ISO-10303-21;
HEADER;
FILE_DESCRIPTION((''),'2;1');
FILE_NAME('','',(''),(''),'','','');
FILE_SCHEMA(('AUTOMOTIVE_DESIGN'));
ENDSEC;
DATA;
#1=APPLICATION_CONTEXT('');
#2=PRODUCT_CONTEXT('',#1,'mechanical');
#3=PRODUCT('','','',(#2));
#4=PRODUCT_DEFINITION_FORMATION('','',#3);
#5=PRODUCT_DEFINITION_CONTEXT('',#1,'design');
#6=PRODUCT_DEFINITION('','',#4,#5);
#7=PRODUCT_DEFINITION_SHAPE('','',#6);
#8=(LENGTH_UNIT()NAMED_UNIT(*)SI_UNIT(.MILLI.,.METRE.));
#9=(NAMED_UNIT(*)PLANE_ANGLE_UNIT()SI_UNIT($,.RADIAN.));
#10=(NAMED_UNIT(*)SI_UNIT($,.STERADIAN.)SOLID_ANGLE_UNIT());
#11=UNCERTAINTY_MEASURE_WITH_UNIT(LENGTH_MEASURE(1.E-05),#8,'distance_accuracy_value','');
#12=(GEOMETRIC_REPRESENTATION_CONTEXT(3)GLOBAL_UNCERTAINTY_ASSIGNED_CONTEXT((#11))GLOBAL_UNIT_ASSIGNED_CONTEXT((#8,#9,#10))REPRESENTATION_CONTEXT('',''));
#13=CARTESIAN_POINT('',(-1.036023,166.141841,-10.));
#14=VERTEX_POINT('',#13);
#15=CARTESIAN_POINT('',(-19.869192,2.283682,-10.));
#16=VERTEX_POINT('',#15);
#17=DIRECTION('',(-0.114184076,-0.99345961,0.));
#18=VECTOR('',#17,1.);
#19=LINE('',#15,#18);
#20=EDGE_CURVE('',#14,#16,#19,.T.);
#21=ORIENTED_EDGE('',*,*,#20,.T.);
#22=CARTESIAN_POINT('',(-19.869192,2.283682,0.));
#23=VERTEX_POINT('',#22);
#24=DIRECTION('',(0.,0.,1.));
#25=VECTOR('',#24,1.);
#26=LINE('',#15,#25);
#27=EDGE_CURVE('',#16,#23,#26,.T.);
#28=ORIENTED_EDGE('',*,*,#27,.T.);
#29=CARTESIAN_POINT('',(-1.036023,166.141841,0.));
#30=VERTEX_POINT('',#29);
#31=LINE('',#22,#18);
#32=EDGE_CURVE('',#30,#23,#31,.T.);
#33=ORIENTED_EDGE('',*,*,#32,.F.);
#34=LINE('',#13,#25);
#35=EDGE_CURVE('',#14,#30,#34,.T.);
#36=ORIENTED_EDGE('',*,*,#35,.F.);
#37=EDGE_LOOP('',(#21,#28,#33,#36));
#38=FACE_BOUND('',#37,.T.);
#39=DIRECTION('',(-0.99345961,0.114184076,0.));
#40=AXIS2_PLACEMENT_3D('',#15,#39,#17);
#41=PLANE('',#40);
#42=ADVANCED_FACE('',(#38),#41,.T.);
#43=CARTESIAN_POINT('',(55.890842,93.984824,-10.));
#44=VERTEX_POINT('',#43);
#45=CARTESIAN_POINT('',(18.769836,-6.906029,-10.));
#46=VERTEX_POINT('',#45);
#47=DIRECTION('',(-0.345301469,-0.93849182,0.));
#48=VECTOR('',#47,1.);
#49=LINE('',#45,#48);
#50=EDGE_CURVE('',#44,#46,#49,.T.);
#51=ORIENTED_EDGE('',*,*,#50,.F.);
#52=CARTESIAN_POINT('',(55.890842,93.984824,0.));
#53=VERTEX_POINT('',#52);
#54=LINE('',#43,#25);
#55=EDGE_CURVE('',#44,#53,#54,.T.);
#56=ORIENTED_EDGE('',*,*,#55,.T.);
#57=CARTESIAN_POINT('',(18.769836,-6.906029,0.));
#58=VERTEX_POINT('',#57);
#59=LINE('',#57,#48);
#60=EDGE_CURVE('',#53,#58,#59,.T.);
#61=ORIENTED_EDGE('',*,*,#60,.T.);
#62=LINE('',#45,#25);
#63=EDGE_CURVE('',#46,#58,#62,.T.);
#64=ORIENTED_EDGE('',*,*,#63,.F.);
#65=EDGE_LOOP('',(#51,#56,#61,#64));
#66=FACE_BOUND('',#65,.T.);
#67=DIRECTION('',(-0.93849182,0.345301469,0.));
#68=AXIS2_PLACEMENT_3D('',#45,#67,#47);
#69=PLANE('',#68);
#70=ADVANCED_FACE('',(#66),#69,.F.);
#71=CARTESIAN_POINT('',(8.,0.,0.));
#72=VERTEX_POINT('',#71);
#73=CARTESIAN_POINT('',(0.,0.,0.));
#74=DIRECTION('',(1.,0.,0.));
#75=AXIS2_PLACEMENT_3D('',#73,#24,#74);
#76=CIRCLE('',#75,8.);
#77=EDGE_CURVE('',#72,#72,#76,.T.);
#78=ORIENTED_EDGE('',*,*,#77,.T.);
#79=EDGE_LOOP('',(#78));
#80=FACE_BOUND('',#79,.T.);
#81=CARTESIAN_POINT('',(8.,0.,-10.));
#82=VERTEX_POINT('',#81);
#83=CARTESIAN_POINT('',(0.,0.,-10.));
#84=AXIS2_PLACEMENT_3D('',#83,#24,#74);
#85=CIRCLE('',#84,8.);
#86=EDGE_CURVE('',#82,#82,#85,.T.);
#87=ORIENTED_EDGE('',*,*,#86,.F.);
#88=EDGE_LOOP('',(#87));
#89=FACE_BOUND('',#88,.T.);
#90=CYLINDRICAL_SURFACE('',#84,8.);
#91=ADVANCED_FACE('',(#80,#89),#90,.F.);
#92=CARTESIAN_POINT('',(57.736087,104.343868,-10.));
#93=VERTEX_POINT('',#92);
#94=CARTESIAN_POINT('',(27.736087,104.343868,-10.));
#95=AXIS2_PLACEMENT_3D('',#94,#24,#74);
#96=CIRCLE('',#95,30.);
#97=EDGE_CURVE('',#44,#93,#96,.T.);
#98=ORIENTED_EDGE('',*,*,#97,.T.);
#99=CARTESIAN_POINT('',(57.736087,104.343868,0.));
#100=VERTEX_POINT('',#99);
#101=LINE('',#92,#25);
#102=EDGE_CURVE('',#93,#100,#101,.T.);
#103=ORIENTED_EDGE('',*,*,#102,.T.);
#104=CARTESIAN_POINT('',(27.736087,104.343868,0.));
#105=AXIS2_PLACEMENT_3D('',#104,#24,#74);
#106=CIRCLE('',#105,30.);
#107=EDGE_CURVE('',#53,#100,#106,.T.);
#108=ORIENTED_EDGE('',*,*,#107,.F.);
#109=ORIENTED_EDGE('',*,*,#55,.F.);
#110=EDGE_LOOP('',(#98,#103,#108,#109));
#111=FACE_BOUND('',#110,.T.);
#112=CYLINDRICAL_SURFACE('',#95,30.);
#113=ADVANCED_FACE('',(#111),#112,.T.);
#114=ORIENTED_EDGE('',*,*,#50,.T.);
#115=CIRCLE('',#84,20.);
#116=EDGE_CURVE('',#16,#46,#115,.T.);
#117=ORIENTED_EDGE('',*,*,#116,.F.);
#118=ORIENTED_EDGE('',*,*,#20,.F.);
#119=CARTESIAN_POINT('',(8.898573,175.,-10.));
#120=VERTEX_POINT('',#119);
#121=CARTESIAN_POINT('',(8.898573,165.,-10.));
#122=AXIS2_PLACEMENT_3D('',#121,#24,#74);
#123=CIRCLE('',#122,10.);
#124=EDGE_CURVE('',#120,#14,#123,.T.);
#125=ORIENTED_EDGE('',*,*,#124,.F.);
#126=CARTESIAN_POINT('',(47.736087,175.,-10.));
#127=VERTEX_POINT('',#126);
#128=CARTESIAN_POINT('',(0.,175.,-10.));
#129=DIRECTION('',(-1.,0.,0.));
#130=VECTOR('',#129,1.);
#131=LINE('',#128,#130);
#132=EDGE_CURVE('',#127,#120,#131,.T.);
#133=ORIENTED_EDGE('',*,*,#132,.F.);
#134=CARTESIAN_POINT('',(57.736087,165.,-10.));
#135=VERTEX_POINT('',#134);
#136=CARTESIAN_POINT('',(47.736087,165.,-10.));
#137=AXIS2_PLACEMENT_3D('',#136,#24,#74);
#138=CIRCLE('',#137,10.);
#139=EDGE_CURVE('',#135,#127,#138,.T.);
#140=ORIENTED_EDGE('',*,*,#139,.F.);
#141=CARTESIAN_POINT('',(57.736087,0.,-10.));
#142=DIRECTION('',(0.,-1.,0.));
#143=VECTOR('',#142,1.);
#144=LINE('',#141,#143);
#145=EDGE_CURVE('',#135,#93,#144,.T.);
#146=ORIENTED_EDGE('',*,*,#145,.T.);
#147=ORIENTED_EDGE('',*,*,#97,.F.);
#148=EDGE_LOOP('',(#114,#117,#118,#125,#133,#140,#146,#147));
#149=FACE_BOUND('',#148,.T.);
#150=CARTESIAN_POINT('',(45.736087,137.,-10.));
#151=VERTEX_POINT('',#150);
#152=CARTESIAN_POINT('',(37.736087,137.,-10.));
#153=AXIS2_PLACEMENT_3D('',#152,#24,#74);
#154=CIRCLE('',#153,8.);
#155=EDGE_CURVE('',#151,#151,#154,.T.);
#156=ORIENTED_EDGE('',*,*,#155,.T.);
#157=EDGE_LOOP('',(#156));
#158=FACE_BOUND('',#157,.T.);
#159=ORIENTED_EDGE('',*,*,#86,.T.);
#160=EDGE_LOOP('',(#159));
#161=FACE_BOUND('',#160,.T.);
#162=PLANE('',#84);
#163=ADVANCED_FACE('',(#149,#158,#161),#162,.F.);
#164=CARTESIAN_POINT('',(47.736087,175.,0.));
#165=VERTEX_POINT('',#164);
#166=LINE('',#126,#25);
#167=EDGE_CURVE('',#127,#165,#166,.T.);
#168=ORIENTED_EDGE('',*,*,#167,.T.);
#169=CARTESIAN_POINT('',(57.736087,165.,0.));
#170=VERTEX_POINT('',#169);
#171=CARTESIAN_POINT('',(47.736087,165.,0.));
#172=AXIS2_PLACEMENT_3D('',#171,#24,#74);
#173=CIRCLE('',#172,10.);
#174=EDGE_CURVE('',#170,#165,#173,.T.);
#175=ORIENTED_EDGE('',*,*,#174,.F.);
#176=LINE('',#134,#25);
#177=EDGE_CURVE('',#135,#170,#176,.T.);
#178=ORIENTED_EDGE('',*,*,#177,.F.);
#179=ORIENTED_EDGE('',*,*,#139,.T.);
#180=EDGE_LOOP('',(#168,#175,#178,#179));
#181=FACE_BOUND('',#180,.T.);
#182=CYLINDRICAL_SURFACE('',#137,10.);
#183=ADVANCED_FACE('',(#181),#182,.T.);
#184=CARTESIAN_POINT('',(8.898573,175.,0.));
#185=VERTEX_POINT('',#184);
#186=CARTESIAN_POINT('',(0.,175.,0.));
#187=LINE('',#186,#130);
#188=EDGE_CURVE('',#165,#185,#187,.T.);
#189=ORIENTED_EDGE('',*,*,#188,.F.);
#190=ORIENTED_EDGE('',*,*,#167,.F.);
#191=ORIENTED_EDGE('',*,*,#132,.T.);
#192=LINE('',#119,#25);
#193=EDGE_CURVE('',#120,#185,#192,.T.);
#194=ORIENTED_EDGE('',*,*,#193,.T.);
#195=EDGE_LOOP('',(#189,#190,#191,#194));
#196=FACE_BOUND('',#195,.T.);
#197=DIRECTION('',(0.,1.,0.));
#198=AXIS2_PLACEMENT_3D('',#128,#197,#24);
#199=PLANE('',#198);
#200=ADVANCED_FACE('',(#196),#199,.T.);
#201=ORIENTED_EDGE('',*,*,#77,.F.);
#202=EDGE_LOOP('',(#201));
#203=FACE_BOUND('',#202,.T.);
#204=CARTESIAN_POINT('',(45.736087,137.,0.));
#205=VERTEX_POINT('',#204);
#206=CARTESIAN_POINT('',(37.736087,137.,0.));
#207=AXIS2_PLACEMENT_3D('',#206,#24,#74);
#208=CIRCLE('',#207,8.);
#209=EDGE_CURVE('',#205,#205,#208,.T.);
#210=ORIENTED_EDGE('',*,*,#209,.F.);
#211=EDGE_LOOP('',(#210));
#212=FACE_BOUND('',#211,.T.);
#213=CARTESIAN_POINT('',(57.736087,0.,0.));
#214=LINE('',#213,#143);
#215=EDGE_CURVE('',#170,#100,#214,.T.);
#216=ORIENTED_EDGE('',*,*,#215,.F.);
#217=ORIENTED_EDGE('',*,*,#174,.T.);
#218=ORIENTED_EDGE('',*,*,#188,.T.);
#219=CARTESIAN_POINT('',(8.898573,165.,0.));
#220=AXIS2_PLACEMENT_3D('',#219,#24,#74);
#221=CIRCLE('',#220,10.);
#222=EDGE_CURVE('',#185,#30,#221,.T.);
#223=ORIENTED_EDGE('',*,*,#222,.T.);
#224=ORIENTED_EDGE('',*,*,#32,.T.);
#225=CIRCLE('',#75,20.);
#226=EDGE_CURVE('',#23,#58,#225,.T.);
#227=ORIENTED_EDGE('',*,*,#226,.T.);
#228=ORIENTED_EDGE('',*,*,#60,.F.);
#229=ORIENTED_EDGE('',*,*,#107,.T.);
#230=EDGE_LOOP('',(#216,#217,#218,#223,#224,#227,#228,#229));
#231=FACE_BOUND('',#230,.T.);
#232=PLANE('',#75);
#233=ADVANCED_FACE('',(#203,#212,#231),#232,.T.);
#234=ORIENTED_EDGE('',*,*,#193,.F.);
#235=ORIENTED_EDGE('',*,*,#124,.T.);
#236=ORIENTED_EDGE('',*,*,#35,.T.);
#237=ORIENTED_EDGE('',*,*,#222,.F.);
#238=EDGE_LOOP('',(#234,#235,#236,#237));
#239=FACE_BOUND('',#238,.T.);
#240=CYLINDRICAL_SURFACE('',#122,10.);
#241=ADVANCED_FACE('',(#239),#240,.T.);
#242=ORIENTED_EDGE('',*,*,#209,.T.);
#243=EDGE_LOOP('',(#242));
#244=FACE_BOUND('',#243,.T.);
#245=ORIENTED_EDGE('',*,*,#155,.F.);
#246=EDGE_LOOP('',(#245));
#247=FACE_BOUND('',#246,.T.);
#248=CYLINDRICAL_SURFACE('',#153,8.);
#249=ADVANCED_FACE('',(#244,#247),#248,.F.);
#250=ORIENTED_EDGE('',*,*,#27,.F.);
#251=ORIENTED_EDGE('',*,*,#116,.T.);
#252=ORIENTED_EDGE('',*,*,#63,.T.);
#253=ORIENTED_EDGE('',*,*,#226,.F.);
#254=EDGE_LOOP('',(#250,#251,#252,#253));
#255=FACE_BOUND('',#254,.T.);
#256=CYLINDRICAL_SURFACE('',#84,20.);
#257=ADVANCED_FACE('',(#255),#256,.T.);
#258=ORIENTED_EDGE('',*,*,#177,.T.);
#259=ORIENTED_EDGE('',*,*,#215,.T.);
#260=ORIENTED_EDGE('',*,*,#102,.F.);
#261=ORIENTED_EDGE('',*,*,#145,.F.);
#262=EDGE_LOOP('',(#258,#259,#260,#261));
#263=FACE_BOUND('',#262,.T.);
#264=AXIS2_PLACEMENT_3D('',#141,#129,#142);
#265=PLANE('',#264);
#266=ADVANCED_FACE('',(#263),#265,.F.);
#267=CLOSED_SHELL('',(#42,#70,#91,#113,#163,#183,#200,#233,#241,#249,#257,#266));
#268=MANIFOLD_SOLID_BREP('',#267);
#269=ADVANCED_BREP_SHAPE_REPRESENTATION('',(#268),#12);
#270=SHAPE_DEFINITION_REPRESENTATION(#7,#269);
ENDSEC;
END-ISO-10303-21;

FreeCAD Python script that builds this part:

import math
import FreeCAD as App
import Part
import Sketcher

doc = App.newDocument("Part")
body = doc.addObject("PartDesign::Body", "Body")

sketch1 = body.newObject("Sketcher::SketchObject", "Sketch")
sketch1.AttachmentSupport = (doc.getObject("XY_Plane"), [""])
sketch1.MapMode = "FlatFace"
sketch1.addGeometry(Part.ArcOfCircle(Part.Circle(App.Vector(8.898573, 165, 0), App.Vector(0, 0, 1), 10), math.radians(90), math.radians(173.443434)), False)
sketch1.addGeometry(Part.LineSegment(App.Vector(-1.036023, 166.141841, 0), App.Vector(-19.869192, 2.283682, 0)), False)
sketch1.addGeometry(Part.ArcOfCircle(Part.Circle(App.Vector(0, 0, 0), App.Vector(0, 0, 1), 20), math.radians(173.443434), math.radians(339.7998)), False)
sketch1.addGeometry(Part.LineSegment(App.Vector(18.769836, -6.906029, 0), App.Vector(55.890842, 93.984824, 0)), False)
sketch1.addGeometry(Part.ArcOfCircle(Part.Circle(App.Vector(27.736087, 104.343868, 0), App.Vector(0, 0, 1), 30), math.radians(-20.2002), math.radians(-10.260794)), False)
sketch1.addGeometry(Part.ArcOfCircle(Part.Circle(App.Vector(27.736087, 104.343868, 0), App.Vector(0, 0, 1), 30), math.radians(-10.260794), math.radians(0)), False)
sketch1.addGeometry(Part.LineSegment(App.Vector(57.736087, 104.343868, 0), App.Vector(57.736087, 165, 0)), False)
sketch1.addGeometry(Part.ArcOfCircle(Part.Circle(App.Vector(47.736087, 165, 0), App.Vector(0, 0, 1), 10), math.radians(0), math.radians(90)), False)
sketch1.addGeometry(Part.LineSegment(App.Vector(47.736087, 175, 0), App.Vector(8.898573, 175, 0)), False)
sketch1.addGeometry(Part.Circle(App.Vector(37.736087, 137, 0), App.Vector(0, 0, 1), 8), False)
sketch1.addGeometry(Part.Circle(App.Vector(0, 0, 0), App.Vector(0, 0, 1), 8), False)
sketch1.addConstraint(Sketcher.Constraint("Tangent", 0, 2, 1, 1))
sketch1.addConstraint(Sketcher.Constraint("Tangent", 1, 2, 2, 1))
sketch1.addConstraint(Sketcher.Constraint("Tangent", 2, 2, 3, 1))
sketch1.addConstraint(Sketcher.Constraint("Tangent", 3, 2, 4, 1))
sketch1.addConstraint(Sketcher.Constraint("Tangent", 4, 2, 5, 1))
sketch1.addConstraint(Sketcher.Constraint("Tangent", 5, 2, 6, 1))
sketch1.addConstraint(Sketcher.Constraint("Tangent", 6, 2, 7, 1))
sketch1.addConstraint(Sketcher.Constraint("Tangent", 7, 2, 8, 1))
sketch1.addConstraint(Sketcher.Constraint("Tangent", 8, 2, 0, 1))
sketch1.addConstraint(Sketcher.Constraint("Vertical", 6))
sketch1.addConstraint(Sketcher.Constraint("Horizontal", 8))
sketch1.addConstraint(Sketcher.Constraint("Coincident", 2, 3, -1, 1))
sketch1.addConstraint(Sketcher.Constraint("Coincident", 10, 3, -1, 1))
sketch1.addConstraint(Sketcher.Constraint("Equal", 4, 5))
sketch1.addConstraint(Sketcher.Constraint("Equal", 0, 7))
sketch1.addConstraint(Sketcher.Constraint("Equal", 9, 10))
sketch1.addConstraint(Sketcher.Constraint("Diameter", 9, 16.0))
sketch1.addConstraint(Sketcher.Constraint("Radius", 0, 10.0))
sketch1.addConstraint(Sketcher.Constraint("Radius", 2, 20.0))
sketch1.addConstraint(Sketcher.Constraint("Radius", 4, 30.0))
sketch1.addConstraint(Sketcher.Constraint("DistanceY", -1, 1, 0, 3, 165.0))
sketch1.addConstraint(Sketcher.Constraint("DistanceY", -1, 1, 9, 3, 137.0))
sketch1.addConstraint(Sketcher.Constraint("DistanceY", -1, 1, 4, 2, 99.0))
sketch1.addConstraint(Sketcher.Constraint("DistanceX", 9, 3, 7, 3, 10.0))
sketch1.addConstraint(Sketcher.Constraint("DistanceX", -1, 1, 4, 2, 57.256302))
sketch1.addConstraint(Sketcher.Constraint("Distance", 1, 164.936911))
sketch1.addConstraint(Sketcher.Constraint("DistanceX", 8, 2, 8, 1, 38.837514))
pad1 = body.newObject("PartDesign::Pad", "Pad")
pad1.Profile = sketch1
pad1.Length = 10
pad1.Reversed = True

doc.recompute()
